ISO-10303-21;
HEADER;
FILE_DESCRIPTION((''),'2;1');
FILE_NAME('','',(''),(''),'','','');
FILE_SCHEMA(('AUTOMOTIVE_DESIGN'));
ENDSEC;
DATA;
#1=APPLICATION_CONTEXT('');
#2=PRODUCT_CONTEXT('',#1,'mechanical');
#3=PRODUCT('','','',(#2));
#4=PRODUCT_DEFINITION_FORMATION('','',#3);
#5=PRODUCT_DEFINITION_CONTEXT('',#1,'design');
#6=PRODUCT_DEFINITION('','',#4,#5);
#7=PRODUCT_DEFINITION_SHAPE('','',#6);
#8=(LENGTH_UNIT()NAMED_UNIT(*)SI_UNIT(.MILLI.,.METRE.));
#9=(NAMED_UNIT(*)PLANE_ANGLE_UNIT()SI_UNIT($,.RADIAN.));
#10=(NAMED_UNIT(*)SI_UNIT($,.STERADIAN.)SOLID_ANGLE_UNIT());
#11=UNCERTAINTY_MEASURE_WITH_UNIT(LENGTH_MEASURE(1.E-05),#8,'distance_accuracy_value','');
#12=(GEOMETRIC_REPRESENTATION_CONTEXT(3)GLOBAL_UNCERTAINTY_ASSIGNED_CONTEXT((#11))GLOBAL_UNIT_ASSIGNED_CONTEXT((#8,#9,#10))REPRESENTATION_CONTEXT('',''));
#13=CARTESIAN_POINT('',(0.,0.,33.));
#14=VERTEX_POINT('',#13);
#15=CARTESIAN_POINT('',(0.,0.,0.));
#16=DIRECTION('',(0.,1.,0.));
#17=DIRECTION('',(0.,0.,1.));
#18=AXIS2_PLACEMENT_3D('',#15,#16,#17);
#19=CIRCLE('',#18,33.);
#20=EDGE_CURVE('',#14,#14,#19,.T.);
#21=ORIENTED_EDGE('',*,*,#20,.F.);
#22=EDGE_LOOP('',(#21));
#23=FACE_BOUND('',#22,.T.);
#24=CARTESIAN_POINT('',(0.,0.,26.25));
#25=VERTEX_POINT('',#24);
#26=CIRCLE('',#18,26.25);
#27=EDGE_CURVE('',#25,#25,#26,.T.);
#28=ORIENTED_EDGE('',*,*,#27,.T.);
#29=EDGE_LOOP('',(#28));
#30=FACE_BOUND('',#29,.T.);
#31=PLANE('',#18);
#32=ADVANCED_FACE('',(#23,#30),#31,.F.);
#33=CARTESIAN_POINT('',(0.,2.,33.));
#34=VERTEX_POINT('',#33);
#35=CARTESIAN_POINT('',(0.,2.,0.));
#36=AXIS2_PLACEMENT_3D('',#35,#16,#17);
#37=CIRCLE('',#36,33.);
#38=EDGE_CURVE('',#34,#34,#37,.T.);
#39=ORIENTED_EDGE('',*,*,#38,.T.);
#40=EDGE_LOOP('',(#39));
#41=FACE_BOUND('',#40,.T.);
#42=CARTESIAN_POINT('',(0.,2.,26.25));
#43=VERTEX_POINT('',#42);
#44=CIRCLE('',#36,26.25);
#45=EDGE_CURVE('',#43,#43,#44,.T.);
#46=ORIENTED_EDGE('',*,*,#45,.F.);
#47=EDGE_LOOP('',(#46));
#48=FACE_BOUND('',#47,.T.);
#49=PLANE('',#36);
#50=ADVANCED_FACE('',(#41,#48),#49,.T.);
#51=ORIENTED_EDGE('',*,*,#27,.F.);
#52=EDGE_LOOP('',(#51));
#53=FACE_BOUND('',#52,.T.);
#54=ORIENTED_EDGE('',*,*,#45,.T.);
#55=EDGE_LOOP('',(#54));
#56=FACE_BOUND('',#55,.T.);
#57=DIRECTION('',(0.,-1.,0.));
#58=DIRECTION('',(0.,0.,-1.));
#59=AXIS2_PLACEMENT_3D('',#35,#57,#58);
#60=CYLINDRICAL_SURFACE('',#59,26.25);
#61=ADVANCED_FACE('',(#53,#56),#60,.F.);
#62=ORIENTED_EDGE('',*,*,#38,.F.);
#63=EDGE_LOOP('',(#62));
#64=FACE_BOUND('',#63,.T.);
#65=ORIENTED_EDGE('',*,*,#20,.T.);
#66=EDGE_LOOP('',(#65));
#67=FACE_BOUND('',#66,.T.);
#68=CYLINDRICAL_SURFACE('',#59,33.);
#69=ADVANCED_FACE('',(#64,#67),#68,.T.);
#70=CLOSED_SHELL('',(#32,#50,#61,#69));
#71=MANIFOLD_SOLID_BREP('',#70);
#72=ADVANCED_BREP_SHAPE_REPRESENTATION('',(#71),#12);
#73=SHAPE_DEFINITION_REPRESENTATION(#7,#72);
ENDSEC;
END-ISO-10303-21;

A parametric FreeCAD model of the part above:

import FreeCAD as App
import Part
import Sketcher
Q = App.Units.Quantity

doc = App.newDocument("Part")
params = doc.addObject("Spreadsheet::Sheet", "Params")
for row, (alias, value) in enumerate([
    ("sketch1_diameter", "66 mm"),
    ("sketch1_diameter2", "52.5 mm"),
    ("pad1_length", "2 mm"),
], start=1):
    params.set(f"A{row}", alias)
    params.set(f"B{row}", "=" + value)
    params.setAlias(f"B{row}", alias)

body = doc.addObject("PartDesign::Body", "Body")

# Sketch on XZ plane
sketch1 = body.newObject("Sketcher::SketchObject", "Sketch")
sketch1.AttachmentSupport = (doc.getObject("XZ_Plane"), [""])
sketch1.MapMode = "FlatFace"
sketch1.addGeometry([
    Part.Circle(App.Vector(0, 0, 0), App.Vector(0, 0, 1), 33),
    Part.Circle(App.Vector(0, 0, 0), App.Vector(0, 0, 1), 26.25),
], False)
sketch1.addConstraint([
    Sketcher.Constraint("Coincident", 0, 3, -1, 1),
    Sketcher.Constraint("Coincident", 1, 3, -1, 1),
    Sketcher.Constraint("Diameter", 0, Q("66 mm")),
    Sketcher.Constraint("Diameter", 1, Q("52.5 mm")),
])
sketch1.setExpression("Constraints[2]", "Params.sketch1_diameter")
sketch1.setExpression("Constraints[3]", "Params.sketch1_diameter2")
pad1 = body.newObject("PartDesign::Pad", "Pad")
pad1.Profile = sketch1
pad1.setExpression("Length", "Params.pad1_length")
pad1.Reversed = True

doc.recompute()
